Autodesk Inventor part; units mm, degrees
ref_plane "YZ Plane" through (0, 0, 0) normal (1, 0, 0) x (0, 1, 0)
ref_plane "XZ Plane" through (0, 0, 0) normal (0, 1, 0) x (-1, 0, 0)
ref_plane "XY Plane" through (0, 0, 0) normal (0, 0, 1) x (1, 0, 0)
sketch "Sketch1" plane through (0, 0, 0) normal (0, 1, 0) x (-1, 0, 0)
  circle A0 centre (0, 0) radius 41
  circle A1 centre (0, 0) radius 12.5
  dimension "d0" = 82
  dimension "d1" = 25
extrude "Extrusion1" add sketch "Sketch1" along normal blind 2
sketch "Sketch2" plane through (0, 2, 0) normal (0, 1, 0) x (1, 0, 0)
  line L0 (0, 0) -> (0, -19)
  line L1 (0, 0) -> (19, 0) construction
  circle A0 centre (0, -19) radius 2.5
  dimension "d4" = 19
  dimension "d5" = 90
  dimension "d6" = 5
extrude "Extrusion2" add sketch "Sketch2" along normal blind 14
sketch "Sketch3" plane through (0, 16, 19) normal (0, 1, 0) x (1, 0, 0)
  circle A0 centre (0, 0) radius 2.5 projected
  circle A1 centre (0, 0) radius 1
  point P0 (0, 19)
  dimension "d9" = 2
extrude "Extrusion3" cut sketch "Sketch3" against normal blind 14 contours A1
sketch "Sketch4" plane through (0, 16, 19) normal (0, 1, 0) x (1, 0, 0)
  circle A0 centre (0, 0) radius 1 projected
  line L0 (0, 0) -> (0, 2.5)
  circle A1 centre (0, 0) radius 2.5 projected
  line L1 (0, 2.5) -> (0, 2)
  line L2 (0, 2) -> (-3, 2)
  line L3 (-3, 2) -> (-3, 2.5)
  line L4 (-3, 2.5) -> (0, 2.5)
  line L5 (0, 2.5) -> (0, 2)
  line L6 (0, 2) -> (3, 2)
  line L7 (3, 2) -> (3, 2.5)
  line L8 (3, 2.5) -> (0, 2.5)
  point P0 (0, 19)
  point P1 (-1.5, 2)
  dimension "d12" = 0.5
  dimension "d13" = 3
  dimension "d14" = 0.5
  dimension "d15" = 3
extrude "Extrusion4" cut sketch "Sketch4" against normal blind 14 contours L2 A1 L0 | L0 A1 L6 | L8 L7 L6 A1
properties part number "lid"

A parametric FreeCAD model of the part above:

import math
import FreeCAD as App
import Part
import Sketcher

V = App.Vector

doc = App.newDocument("Part")
body = doc.addObject("PartDesign::Body", "Body")

# Sketch on XZ plane
sketch1 = doc.addObject("Sketcher::SketchObject", "Sketch")
body.addObject(sketch1)
sketch1.AttachmentSupport = (doc.XZ_Plane, [""])
sketch1.MapMode = "FlatFace"
sketch1.addGeometry([
    Part.Circle(V(0, 0, 0), V(0, 0, 1), 41),
    Part.Circle(V(0, 0, 0), V(0, 0, 1), 12),
], False)
sketch1.addConstraint([
    Sketcher.Constraint("Coincident", 0, 3, -1, 1),
    Sketcher.Constraint("Coincident", 1, 3, -1, 1),
    Sketcher.Constraint("Diameter", 0, 82.0),
    Sketcher.Constraint("Diameter", 1, 25.0),
])
pad1 = doc.addObject("PartDesign::Pad", "Pad")
body.addObject(pad1)
pad1.Profile = sketch1
pad1.Length = 2
pad1.Reversed = True

# Sketch on XZ plane
sketch2 = doc.addObject("Sketcher::SketchObject", "Sketch001")
body.addObject(sketch2)
sketch2.AttachmentSupport = (doc.XZ_Plane, [""])
sketch2.MapMode = "FlatFace"
sketch2.AttachmentOffset = App.Placement(V(0, 0, -2), App.Rotation())
sketch2.addGeometry(Part.Circle(V(0, 19, 0), V(0, 0, 1), 2.5), False)
sketch2.addConstraint([
    Sketcher.Constraint("PointOnObject", 0, 3, -2),
    Sketcher.Constraint("Diameter", 0, 5.0),
    Sketcher.Constraint("DistanceY", -1, 1, 0, 3, 19.0),
])
pad2 = doc.addObject("PartDesign::Pad", "Pad001")
body.addObject(pad2)
pad2.Profile = sketch2
pad2.Length = 14
pad2.Reversed = True

# Sketch on XZ plane
sketch3 = doc.addObject("Sketcher::SketchObject", "Sketch002")
body.addObject(sketch3)
sketch3.AttachmentSupport = (doc.XZ_Plane, [""])
sketch3.MapMode = "FlatFace"
sketch3.AttachmentOffset = App.Placement(V(0, 0, -16), App.Rotation())
sketch3.addGeometry(Part.Circle(V(0, 19, 0), V(0, 0, 1), 1), False)
sketch3.addConstraint([
    Sketcher.Constraint("PointOnObject", 0, 3, -2),
    Sketcher.Constraint("Diameter", 0, 2.0),
    Sketcher.Constraint("DistanceY", -1, 1, 0, 3, 19.0),
])
pocket1 = doc.addObject("PartDesign::Pocket", "Pocket")
body.addObject(pocket1)
pocket1.Profile = sketch3
pocket1.Length = 14
pocket1.Reversed = True

# Sketch on XZ plane
sketch4 = doc.addObject("Sketcher::SketchObject", "Sketch003")
body.addObject(sketch4)
sketch4.AttachmentSupport = (doc.XZ_Plane, [""])
sketch4.MapMode = "FlatFace"
sketch4.AttachmentOffset = App.Placement(V(0, 0, -16), App.Rotation())
sketch4.addGeometry([
    Part.LineSegment(V(-1.5, 17, 0), V(3, 17, 0)),
    Part.LineSegment(V(3, 17, 0), V(3, 16.5, 0)),
    Part.LineSegment(V(3, 16.5, 0), V(0, 16.5, 0)),
    Part.ArcOfCircle(Part.Circle(V(0, 19, 0), V(0, 0, 1), 2.5), math.radians(-127), math.radians(-90)),
], False)
sketch4.addConstraint([
    Sketcher.Constraint("Coincident", 0, 2, 1, 1),
    Sketcher.Constraint("Coincident", 1, 2, 2, 1),
    Sketcher.Constraint("Tangent", 2, 2, 3, 2),
    Sketcher.Constraint("Coincident", 3, 1, 0, 1),
    Sketcher.Constraint("Horizontal", 0),
    Sketcher.Constraint("Vertical", 1),
    Sketcher.Constraint("Horizontal", 2),
    Sketcher.Constraint("PointOnObject", 3, 3, -2),
    Sketcher.Constraint("DistanceX", 2, 2, 2, 1, 3.0),
    Sketcher.Constraint("DistanceY", 1, 2, 1, 1, 0.5),
    Sketcher.Constraint("Radius", 3, 2.5),
    Sketcher.Constraint("DistanceY", -1, 1, 3, 3, 19.0),
])
pocket2 = doc.addObject("PartDesign::Pocket", "Pocket001")
body.addObject(pocket2)
pocket2.Profile = sketch4
pocket2.Length = 14
pocket2.Reversed = True

doc.recompute()
